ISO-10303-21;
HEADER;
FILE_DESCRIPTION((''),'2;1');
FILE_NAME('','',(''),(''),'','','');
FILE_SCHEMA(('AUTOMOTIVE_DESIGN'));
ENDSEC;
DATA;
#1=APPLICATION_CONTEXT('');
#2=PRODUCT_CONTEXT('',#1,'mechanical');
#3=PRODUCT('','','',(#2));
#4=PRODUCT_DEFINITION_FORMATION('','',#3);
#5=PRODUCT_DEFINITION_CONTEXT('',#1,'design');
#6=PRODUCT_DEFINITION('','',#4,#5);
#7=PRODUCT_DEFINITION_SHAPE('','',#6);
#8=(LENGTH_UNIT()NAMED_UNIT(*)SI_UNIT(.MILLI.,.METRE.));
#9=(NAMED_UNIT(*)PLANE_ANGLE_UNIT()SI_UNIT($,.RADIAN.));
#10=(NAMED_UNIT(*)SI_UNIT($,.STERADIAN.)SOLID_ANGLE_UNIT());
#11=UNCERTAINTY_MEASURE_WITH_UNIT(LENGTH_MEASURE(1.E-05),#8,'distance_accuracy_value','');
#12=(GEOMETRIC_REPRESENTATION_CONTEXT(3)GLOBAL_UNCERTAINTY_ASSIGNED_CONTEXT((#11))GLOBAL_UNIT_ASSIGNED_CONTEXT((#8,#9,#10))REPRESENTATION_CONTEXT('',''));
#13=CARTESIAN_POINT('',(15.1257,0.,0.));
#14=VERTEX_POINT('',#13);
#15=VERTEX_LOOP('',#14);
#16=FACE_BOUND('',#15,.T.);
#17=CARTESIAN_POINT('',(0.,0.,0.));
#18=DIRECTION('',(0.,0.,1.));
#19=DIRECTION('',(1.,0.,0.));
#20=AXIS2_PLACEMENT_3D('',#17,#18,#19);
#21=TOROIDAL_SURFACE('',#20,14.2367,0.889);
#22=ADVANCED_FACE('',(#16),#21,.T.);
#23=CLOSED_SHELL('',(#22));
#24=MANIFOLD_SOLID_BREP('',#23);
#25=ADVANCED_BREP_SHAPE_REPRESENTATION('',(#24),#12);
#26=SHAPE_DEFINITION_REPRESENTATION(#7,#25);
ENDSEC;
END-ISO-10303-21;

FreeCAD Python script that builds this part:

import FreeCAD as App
import Part
import Sketcher
Q = App.Units.Quantity

doc = App.newDocument("Part")
params = doc.addObject("Spreadsheet::Sheet", "Params")
for row, (alias, value) in enumerate([
    ("sketch1_diameter", "0.07 in"),
    ("revolution_angle", "360 deg"),
], start=1):
    params.set(f"A{row}", alias)
    params.set(f"B{row}", "=" + value)
    params.setAlias(f"B{row}", alias)

body = doc.addObject("PartDesign::Body", "Body")

# Sketch on YZ plane
sketch1 = body.newObject("Sketcher::SketchObject", "Sketch")
sketch1.AttachmentSupport = (doc.getObject("YZ_Plane"), [""])
sketch1.MapMode = "FlatFace"
sketch1.addGeometry(Part.Circle(App.Vector(-14.2, 0, 0), App.Vector(0, 0, 1), 0.9), False)
sketch1.addConstraint([
    Sketcher.Constraint("PointOnObject", 0, 3, -1),
    Sketcher.Constraint("Diameter", 0, Q("0.07 in")),
    Sketcher.Constraint("DistanceX", 0, 3, -1, 1, Q("0.5605 in")),
])
sketch1.setExpression("Constraints[1]", "Params.sketch1_diameter")
revolution = body.newObject("PartDesign::Revolution", "Revolution")
revolution.Profile = sketch1
revolution.ReferenceAxis = (sketch1, ["V_Axis"])
revolution.setExpression("Angle", "Params.revolution_angle")

doc.recompute()
